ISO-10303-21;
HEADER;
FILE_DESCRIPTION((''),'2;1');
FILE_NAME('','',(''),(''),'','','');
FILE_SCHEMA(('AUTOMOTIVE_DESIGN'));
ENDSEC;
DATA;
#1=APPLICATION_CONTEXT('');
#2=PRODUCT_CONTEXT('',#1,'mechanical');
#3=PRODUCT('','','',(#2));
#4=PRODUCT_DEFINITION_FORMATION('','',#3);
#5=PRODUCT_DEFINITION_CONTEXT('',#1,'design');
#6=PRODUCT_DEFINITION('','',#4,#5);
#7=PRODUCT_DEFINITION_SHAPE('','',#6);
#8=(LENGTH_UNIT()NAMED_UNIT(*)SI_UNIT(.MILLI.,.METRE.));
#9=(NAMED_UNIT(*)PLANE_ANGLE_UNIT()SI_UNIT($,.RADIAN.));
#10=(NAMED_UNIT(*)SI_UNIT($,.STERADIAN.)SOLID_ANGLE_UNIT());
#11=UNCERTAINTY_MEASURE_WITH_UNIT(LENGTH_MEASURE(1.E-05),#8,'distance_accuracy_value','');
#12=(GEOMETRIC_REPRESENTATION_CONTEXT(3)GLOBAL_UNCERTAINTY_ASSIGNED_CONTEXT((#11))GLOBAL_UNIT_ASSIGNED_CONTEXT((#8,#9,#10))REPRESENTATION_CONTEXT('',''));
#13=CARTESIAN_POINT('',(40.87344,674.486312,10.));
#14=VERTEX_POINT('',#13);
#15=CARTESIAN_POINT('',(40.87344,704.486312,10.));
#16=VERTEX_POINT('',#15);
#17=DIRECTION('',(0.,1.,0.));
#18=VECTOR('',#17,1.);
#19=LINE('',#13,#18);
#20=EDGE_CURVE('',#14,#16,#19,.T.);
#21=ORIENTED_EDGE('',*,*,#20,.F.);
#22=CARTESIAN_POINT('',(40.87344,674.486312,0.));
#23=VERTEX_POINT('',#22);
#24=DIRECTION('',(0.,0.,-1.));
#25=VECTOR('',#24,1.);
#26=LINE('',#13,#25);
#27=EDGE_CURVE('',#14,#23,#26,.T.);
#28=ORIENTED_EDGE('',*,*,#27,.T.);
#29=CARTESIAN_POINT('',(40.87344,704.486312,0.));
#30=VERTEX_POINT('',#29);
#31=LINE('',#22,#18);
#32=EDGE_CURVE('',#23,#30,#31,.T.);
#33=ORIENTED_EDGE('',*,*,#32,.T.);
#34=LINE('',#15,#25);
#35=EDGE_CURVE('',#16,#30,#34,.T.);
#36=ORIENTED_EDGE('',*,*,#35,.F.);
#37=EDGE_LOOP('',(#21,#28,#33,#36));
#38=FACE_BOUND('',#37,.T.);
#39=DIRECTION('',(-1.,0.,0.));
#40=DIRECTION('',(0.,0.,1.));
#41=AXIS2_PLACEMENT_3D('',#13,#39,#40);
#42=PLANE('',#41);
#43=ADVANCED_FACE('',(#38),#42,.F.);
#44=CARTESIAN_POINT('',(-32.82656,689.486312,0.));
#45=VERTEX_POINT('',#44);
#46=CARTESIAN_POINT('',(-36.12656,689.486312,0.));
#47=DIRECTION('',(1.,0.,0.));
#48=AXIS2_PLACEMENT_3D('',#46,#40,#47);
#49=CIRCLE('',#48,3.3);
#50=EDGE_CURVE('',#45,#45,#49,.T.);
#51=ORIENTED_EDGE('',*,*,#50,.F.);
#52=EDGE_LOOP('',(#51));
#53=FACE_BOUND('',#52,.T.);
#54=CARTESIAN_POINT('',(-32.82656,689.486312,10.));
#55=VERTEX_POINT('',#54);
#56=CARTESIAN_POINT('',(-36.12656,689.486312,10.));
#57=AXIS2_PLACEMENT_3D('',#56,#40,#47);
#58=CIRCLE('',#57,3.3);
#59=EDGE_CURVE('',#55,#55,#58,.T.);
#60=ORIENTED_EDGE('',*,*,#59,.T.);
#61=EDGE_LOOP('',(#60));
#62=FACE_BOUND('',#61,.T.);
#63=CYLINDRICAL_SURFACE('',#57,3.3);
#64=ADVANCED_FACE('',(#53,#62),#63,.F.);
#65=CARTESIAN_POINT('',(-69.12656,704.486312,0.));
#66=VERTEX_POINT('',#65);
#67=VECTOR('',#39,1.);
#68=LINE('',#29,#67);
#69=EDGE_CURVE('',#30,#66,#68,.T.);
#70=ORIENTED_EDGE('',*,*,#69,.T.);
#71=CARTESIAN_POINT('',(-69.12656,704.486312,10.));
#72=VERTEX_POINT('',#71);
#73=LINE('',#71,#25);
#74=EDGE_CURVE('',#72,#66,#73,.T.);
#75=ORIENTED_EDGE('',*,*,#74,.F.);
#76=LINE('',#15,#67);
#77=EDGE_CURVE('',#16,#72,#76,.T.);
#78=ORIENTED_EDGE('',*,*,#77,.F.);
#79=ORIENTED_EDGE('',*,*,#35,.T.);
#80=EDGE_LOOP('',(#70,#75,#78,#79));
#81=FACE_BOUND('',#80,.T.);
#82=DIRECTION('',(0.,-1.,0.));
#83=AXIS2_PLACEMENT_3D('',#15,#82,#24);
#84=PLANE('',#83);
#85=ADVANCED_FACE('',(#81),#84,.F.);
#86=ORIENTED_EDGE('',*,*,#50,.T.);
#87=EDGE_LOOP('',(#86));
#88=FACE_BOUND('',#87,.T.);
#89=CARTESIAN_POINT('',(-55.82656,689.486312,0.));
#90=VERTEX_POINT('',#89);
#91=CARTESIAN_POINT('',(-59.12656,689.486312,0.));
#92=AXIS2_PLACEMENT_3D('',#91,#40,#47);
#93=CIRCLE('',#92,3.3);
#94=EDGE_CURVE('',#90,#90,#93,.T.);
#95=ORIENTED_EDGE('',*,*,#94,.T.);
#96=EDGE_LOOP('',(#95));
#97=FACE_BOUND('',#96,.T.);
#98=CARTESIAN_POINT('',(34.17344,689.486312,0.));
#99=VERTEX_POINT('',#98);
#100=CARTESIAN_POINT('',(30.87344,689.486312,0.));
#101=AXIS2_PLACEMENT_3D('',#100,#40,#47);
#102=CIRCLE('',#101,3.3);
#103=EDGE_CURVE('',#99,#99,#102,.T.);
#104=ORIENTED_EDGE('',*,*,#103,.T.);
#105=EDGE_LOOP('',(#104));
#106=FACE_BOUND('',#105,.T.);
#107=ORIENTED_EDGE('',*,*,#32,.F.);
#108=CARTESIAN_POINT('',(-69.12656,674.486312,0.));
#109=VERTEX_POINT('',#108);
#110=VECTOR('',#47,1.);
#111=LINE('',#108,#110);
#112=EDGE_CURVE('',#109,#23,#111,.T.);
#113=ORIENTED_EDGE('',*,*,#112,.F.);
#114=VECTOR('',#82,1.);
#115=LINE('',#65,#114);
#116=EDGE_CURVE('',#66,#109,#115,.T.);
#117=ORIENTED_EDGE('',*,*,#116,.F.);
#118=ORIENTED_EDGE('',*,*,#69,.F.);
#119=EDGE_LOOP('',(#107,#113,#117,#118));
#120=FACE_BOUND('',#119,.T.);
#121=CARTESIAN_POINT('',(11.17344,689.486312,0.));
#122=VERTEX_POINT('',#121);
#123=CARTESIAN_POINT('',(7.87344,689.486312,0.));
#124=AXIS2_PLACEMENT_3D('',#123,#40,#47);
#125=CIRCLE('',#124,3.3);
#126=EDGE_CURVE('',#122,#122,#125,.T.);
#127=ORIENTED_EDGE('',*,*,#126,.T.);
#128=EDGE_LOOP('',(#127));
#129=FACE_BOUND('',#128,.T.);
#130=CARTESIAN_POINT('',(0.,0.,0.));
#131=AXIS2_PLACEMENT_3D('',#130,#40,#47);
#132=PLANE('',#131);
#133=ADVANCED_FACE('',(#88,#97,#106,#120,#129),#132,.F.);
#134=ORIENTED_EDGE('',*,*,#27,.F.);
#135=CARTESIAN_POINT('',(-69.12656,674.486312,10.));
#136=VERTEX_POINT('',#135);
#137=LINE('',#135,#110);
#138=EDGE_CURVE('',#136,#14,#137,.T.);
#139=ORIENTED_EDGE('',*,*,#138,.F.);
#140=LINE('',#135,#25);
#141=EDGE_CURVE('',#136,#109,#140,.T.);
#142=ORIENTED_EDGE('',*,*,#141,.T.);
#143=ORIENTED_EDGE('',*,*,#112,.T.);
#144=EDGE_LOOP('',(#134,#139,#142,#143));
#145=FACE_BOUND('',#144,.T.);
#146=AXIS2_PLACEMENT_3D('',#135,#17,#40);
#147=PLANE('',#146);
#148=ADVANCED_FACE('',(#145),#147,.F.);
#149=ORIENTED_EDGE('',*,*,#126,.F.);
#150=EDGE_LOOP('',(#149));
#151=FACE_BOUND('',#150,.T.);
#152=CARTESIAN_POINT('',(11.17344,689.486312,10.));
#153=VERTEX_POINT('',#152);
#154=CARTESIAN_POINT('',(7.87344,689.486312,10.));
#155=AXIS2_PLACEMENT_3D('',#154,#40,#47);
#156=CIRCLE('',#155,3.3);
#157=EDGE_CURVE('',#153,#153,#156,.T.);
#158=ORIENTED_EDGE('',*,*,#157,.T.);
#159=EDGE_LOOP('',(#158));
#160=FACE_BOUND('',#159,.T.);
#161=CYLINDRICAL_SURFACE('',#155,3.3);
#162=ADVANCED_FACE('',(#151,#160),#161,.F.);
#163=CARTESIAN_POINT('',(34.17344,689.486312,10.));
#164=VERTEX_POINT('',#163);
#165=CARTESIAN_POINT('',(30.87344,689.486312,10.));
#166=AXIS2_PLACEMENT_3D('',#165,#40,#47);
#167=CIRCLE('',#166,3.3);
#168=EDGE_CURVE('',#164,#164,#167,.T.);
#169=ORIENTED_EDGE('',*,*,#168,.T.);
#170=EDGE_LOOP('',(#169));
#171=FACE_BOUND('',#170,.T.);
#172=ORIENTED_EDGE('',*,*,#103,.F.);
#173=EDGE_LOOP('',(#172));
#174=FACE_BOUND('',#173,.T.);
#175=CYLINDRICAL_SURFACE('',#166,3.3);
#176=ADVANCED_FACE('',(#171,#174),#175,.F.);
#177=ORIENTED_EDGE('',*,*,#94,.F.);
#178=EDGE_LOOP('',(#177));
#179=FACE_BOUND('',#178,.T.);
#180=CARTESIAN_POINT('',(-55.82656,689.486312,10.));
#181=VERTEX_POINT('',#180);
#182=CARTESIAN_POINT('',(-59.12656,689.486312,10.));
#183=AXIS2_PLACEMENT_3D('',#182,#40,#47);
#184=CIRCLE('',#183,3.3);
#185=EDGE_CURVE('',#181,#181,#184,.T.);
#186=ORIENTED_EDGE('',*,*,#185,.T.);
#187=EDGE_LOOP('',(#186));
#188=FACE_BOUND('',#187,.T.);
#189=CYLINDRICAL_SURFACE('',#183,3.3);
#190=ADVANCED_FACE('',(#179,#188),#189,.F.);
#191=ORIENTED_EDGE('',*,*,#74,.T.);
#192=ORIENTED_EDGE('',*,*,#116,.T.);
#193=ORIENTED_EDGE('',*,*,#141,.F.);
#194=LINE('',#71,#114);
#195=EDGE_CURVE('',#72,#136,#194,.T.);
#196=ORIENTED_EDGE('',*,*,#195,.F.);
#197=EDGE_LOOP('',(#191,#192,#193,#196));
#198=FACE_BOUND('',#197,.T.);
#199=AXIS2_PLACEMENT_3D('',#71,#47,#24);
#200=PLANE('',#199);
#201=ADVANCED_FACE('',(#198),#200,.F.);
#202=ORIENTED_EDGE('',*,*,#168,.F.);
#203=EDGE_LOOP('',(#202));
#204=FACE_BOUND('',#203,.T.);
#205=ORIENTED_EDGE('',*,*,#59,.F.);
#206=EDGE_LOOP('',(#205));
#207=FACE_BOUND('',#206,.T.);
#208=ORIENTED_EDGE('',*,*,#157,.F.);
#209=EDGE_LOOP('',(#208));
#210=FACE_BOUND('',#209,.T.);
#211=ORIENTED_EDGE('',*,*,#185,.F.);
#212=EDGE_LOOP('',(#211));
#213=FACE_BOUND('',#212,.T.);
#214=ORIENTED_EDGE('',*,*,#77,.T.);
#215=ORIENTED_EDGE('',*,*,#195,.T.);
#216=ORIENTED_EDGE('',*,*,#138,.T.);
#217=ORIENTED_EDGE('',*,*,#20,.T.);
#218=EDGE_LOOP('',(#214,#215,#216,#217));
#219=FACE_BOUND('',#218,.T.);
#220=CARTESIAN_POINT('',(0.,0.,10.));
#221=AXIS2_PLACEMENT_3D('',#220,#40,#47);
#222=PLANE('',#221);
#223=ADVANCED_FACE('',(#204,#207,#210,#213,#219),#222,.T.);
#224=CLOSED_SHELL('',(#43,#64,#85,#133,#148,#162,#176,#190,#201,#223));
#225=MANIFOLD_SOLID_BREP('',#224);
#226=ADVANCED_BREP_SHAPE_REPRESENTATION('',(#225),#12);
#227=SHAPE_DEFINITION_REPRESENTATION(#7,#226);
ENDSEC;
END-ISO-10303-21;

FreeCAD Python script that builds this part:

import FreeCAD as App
import Part
import Sketcher

doc = App.newDocument("Part")
body = doc.addObject("PartDesign::Body", "Body")

# Sketch on XY plane
sketch1 = body.newObject("Sketcher::SketchObject", "Sketch")
sketch1.AttachmentSupport = (doc.getObject("XY_Plane"), [""])
sketch1.MapMode = "FlatFace"
sketch1.addGeometry(Part.LineSegment(App.Vector(-69, 704, 0), App.Vector(-69, 674, 0)), False)
sketch1.addGeometry(Part.LineSegment(App.Vector(-69, 674, 0), App.Vector(41, 674, 0)), False)
sketch1.addGeometry(Part.LineSegment(App.Vector(41, 674, 0), App.Vector(41, 704, 0)), False)
sketch1.addGeometry(Part.LineSegment(App.Vector(41, 704, 0), App.Vector(-69, 704, 0)), False)
sketch1.addConstraint(Sketcher.Constraint("Coincident", 0, 2, 1, 1))
sketch1.addConstraint(Sketcher.Constraint("Coincident", 1, 2, 2, 1))
sketch1.addConstraint(Sketcher.Constraint("Coincident", 2, 2, 3, 1))
sketch1.addConstraint(Sketcher.Constraint("Coincident", 3, 2, 0, 1))
sketch1.addConstraint(Sketcher.Constraint("Vertical", 0))
sketch1.addConstraint(Sketcher.Constraint("Horizontal", 1))
sketch1.addConstraint(Sketcher.Constraint("Vertical", 2))
sketch1.addConstraint(Sketcher.Constraint("Horizontal", 3))
sketch1.addConstraint(Sketcher.Constraint("DistanceX", 1, 1, 1, 2, 110.0))
sketch1.addConstraint(Sketcher.Constraint("DistanceY", 0, 2, 0, 1, 30.0))
sketch1.addConstraint(Sketcher.Constraint("DistanceX", 0, 2, -1, 1, 69.12656))
sketch1.addConstraint(Sketcher.Constraint("DistanceY", -1, 1, 0, 2, 674.486312))
pad1 = body.newObject("PartDesign::Pad", "Pad")
pad1.Profile = sketch1
pad1.Length = 10

# Sketch on XY plane
sketch2 = body.newObject("Sketcher::SketchObject", "Sketch001")
sketch2.AttachmentSupport = (doc.getObject("XY_Plane"), [""])
sketch2.MapMode = "FlatFace"
sketch2.AttachmentOffset = App.Placement(App.Vector(0, 0, 10), App.Rotation())
sketch2.addGeometry(Part.Circle(App.Vector(30.9, 136.1, 0), App.Vector(0, 0, 1), 3.3), False)
sketch2.addGeometry(Part.Circle(App.Vector(30.9, 174.1, 0), App.Vector(0, 0, 1), 3.3), False)
sketch2.addGeometry(Part.Circle(App.Vector(7.9, 133.1, 0), App.Vector(0, 0, 1), 3.3), False)
sketch2.addGeometry(Part.Circle(App.Vector(7.9, 177.1, 0), App.Vector(0, 0, 1), 3.3), False)
sketch2.addGeometry(Part.Circle(App.Vector(-36.1, 133.1, 0), App.Vector(0, 0, 1), 3.3), False)
sketch2.addGeometry(Part.Circle(App.Vector(-36.1, 177.1, 0), App.Vector(0, 0, 1), 3.3), False)
sketch2.addGeometry(Part.Circle(App.Vector(-59.1, 136.1, 0), App.Vector(0, 0, 1), 3.3), False)
sketch2.addGeometry(Part.Circle(App.Vector(-59.1, 174.1, 0), App.Vector(0, 0, 1), 3.3), False)
sketch2.addGeometry(Part.Circle(App.Vector(30.9, 689.5, 0), App.Vector(0, 0, 1), 3.3), False)
sketch2.addGeometry(Part.Circle(App.Vector(7.9, 689.5, 0), App.Vector(0, 0, 1), 3.3), False)
sketch2.addGeometry(Part.Circle(App.Vector(-36.1, 689.5, 0), App.Vector(0, 0, 1), 3.3), False)
sketch2.addGeometry(Part.Circle(App.Vector(-59.1, 689.5, 0), App.Vector(0, 0, 1), 3.3), False)
sketch2.addGeometry(Part.Circle(App.Vector(151, 104.8, 0), App.Vector(0, 0, 1), 3.3), False)
sketch2.addGeometry(Part.Circle(App.Vector(30.9, 155.1, 0), App.Vector(0, 0, 1), 3.3), False)
sketch2.addGeometry(Part.Circle(App.Vector(7.9, 155.1, 0), App.Vector(0, 0, 1), 3.3), False)
sketch2.addGeometry(Part.Circle(App.Vector(-36.1, 155.1, 0), App.Vector(0, 0, 1), 3.3), False)
sketch2.addGeometry(Part.Circle(App.Vector(-59.1, 155.1, 0), App.Vector(0, 0, 1), 3.3), False)
sketch2.addConstraint(Sketcher.Constraint("Equal", 0, 1))
sketch2.addConstraint(Sketcher.Constraint("Equal", 1, 2))
sketch2.addConstraint(Sketcher.Constraint("Equal", 2, 3))
sketch2.addConstraint(Sketcher.Constraint("Equal", 3, 4))
sketch2.addConstraint(Sketcher.Constraint("Equal", 4, 5))
sketch2.addConstraint(Sketcher.Constraint("Equal", 5, 6))
sketch2.addConstraint(Sketcher.Constraint("Equal", 6, 7))
sketch2.addConstraint(Sketcher.Constraint("Equal", 7, 8))
sketch2.addConstraint(Sketcher.Constraint("Equal", 8, 9))
sketch2.addConstraint(Sketcher.Constraint("Equal", 9, 10))
sketch2.addConstraint(Sketcher.Constraint("Equal", 10, 11))
sketch2.addConstraint(Sketcher.Constraint("Equal", 11, 12))
sketch2.addConstraint(Sketcher.Constraint("Equal", 12, 13))
sketch2.addConstraint(Sketcher.Constraint("Equal", 13, 14))
sketch2.addConstraint(Sketcher.Constraint("Equal", 14, 15))
sketch2.addConstraint(Sketcher.Constraint("Equal", 15, 16))
sketch2.addConstraint(Sketcher.Constraint("Horizontal", 2, 3, 4, 3))
sketch2.addConstraint(Sketcher.Constraint("Horizontal", 3, 3, 5, 3))
sketch2.addConstraint(Sketcher.Constraint("Horizontal", 0, 3, 6, 3))
sketch2.addConstraint(Sketcher.Constraint("Horizontal", 1, 3, 7, 3))
sketch2.addConstraint(Sketcher.Constraint("Horizontal", 8, 3, 9, 3))
sketch2.addConstraint(Sketcher.Constraint("Horizontal", 9, 3, 10, 3))
sketch2.addConstraint(Sketcher.Constraint("Horizontal", 10, 3, 11, 3))
sketch2.addConstraint(Sketcher.Constraint("Horizontal", 13, 3, 14, 3))
sketch2.addConstraint(Sketcher.Constraint("Horizontal", 14, 3, 15, 3))
sketch2.addConstraint(Sketcher.Constraint("Horizontal", 15, 3, 16, 3))
sketch2.addConstraint(Sketcher.Constraint("Vertical", 0, 3, 1, 3))
sketch2.addConstraint(Sketcher.Constraint("Vertical", 2, 3, 3, 3))
sketch2.addConstraint(Sketcher.Constraint("Vertical", 4, 3, 5, 3))
sketch2.addConstraint(Sketcher.Constraint("Vertical", 6, 3, 7, 3))
sketch2.addConstraint(Sketcher.Constraint("Vertical", 1, 3, 8, 3))
sketch2.addConstraint(Sketcher.Constraint("Vertical", 3, 3, 9, 3))
sketch2.addConstraint(Sketcher.Constraint("Vertical", 5, 3, 10, 3))
sketch2.addConstraint(Sketcher.Constraint("Vertical", 7, 3, 11, 3))
sketch2.addConstraint(Sketcher.Constraint("Vertical", 8, 3, 13, 3))
sketch2.addConstraint(Sketcher.Constraint("Vertical", 9, 3, 14, 3))
sketch2.addConstraint(Sketcher.Constraint("Vertical", 10, 3, 15, 3))
sketch2.addConstraint(Sketcher.Constraint("Vertical", 11, 3, 16, 3))
sketch2.addConstraint(Sketcher.Constraint("Diameter", 0, 6.6))
sketch2.addConstraint(Sketcher.Constraint("DistanceY", 0, 3, 1, 3, 38.0))
sketch2.addConstraint(Sketcher.Constraint("DistanceX", 2, 3, 0, 3, 23.0))
sketch2.addConstraint(Sketcher.Constraint("DistanceY", 2, 3, 0, 3, 3.0))
sketch2.addConstraint(Sketcher.Constraint("DistanceY", 1, 3, 3, 3, 3.0))
sketch2.addConstraint(Sketcher.Constraint("DistanceX", 4, 3, 2, 3, 44.0))
sketch2.addConstraint(Sketcher.Constraint("DistanceX", 6, 3, 4, 3, 23.0))
sketch2.addConstraint(Sketcher.Constraint("DistanceY", 0, 3, 13, 3, 19.0))
sketch2.addConstraint(Sketcher.Constraint("DistanceX", -1, 1, 0, 3, 30.87344))
sketch2.addConstraint(Sketcher.Constraint("DistanceY", -1, 1, 8, 3, 689.486312))
sketch2.addConstraint(Sketcher.Constraint("DistanceX", -1, 1, 12, 3, 150.966859))
sketch2.addConstraint(Sketcher.Constraint("DistanceY", 12, 3, 0, 3, 31.27001))
sketch2.addConstraint(Sketcher.Constraint("DistanceY", -1, 1, 0, 3, 136.071848))
doc.recompute()
hole = body.newObject("PartDesign::Hole", "Hole")
hole.Profile = sketch2
hole.ThreadType = "None"
hole.Diameter = 6.6
hole.DepthType = "ThroughAll"

doc.recompute()
